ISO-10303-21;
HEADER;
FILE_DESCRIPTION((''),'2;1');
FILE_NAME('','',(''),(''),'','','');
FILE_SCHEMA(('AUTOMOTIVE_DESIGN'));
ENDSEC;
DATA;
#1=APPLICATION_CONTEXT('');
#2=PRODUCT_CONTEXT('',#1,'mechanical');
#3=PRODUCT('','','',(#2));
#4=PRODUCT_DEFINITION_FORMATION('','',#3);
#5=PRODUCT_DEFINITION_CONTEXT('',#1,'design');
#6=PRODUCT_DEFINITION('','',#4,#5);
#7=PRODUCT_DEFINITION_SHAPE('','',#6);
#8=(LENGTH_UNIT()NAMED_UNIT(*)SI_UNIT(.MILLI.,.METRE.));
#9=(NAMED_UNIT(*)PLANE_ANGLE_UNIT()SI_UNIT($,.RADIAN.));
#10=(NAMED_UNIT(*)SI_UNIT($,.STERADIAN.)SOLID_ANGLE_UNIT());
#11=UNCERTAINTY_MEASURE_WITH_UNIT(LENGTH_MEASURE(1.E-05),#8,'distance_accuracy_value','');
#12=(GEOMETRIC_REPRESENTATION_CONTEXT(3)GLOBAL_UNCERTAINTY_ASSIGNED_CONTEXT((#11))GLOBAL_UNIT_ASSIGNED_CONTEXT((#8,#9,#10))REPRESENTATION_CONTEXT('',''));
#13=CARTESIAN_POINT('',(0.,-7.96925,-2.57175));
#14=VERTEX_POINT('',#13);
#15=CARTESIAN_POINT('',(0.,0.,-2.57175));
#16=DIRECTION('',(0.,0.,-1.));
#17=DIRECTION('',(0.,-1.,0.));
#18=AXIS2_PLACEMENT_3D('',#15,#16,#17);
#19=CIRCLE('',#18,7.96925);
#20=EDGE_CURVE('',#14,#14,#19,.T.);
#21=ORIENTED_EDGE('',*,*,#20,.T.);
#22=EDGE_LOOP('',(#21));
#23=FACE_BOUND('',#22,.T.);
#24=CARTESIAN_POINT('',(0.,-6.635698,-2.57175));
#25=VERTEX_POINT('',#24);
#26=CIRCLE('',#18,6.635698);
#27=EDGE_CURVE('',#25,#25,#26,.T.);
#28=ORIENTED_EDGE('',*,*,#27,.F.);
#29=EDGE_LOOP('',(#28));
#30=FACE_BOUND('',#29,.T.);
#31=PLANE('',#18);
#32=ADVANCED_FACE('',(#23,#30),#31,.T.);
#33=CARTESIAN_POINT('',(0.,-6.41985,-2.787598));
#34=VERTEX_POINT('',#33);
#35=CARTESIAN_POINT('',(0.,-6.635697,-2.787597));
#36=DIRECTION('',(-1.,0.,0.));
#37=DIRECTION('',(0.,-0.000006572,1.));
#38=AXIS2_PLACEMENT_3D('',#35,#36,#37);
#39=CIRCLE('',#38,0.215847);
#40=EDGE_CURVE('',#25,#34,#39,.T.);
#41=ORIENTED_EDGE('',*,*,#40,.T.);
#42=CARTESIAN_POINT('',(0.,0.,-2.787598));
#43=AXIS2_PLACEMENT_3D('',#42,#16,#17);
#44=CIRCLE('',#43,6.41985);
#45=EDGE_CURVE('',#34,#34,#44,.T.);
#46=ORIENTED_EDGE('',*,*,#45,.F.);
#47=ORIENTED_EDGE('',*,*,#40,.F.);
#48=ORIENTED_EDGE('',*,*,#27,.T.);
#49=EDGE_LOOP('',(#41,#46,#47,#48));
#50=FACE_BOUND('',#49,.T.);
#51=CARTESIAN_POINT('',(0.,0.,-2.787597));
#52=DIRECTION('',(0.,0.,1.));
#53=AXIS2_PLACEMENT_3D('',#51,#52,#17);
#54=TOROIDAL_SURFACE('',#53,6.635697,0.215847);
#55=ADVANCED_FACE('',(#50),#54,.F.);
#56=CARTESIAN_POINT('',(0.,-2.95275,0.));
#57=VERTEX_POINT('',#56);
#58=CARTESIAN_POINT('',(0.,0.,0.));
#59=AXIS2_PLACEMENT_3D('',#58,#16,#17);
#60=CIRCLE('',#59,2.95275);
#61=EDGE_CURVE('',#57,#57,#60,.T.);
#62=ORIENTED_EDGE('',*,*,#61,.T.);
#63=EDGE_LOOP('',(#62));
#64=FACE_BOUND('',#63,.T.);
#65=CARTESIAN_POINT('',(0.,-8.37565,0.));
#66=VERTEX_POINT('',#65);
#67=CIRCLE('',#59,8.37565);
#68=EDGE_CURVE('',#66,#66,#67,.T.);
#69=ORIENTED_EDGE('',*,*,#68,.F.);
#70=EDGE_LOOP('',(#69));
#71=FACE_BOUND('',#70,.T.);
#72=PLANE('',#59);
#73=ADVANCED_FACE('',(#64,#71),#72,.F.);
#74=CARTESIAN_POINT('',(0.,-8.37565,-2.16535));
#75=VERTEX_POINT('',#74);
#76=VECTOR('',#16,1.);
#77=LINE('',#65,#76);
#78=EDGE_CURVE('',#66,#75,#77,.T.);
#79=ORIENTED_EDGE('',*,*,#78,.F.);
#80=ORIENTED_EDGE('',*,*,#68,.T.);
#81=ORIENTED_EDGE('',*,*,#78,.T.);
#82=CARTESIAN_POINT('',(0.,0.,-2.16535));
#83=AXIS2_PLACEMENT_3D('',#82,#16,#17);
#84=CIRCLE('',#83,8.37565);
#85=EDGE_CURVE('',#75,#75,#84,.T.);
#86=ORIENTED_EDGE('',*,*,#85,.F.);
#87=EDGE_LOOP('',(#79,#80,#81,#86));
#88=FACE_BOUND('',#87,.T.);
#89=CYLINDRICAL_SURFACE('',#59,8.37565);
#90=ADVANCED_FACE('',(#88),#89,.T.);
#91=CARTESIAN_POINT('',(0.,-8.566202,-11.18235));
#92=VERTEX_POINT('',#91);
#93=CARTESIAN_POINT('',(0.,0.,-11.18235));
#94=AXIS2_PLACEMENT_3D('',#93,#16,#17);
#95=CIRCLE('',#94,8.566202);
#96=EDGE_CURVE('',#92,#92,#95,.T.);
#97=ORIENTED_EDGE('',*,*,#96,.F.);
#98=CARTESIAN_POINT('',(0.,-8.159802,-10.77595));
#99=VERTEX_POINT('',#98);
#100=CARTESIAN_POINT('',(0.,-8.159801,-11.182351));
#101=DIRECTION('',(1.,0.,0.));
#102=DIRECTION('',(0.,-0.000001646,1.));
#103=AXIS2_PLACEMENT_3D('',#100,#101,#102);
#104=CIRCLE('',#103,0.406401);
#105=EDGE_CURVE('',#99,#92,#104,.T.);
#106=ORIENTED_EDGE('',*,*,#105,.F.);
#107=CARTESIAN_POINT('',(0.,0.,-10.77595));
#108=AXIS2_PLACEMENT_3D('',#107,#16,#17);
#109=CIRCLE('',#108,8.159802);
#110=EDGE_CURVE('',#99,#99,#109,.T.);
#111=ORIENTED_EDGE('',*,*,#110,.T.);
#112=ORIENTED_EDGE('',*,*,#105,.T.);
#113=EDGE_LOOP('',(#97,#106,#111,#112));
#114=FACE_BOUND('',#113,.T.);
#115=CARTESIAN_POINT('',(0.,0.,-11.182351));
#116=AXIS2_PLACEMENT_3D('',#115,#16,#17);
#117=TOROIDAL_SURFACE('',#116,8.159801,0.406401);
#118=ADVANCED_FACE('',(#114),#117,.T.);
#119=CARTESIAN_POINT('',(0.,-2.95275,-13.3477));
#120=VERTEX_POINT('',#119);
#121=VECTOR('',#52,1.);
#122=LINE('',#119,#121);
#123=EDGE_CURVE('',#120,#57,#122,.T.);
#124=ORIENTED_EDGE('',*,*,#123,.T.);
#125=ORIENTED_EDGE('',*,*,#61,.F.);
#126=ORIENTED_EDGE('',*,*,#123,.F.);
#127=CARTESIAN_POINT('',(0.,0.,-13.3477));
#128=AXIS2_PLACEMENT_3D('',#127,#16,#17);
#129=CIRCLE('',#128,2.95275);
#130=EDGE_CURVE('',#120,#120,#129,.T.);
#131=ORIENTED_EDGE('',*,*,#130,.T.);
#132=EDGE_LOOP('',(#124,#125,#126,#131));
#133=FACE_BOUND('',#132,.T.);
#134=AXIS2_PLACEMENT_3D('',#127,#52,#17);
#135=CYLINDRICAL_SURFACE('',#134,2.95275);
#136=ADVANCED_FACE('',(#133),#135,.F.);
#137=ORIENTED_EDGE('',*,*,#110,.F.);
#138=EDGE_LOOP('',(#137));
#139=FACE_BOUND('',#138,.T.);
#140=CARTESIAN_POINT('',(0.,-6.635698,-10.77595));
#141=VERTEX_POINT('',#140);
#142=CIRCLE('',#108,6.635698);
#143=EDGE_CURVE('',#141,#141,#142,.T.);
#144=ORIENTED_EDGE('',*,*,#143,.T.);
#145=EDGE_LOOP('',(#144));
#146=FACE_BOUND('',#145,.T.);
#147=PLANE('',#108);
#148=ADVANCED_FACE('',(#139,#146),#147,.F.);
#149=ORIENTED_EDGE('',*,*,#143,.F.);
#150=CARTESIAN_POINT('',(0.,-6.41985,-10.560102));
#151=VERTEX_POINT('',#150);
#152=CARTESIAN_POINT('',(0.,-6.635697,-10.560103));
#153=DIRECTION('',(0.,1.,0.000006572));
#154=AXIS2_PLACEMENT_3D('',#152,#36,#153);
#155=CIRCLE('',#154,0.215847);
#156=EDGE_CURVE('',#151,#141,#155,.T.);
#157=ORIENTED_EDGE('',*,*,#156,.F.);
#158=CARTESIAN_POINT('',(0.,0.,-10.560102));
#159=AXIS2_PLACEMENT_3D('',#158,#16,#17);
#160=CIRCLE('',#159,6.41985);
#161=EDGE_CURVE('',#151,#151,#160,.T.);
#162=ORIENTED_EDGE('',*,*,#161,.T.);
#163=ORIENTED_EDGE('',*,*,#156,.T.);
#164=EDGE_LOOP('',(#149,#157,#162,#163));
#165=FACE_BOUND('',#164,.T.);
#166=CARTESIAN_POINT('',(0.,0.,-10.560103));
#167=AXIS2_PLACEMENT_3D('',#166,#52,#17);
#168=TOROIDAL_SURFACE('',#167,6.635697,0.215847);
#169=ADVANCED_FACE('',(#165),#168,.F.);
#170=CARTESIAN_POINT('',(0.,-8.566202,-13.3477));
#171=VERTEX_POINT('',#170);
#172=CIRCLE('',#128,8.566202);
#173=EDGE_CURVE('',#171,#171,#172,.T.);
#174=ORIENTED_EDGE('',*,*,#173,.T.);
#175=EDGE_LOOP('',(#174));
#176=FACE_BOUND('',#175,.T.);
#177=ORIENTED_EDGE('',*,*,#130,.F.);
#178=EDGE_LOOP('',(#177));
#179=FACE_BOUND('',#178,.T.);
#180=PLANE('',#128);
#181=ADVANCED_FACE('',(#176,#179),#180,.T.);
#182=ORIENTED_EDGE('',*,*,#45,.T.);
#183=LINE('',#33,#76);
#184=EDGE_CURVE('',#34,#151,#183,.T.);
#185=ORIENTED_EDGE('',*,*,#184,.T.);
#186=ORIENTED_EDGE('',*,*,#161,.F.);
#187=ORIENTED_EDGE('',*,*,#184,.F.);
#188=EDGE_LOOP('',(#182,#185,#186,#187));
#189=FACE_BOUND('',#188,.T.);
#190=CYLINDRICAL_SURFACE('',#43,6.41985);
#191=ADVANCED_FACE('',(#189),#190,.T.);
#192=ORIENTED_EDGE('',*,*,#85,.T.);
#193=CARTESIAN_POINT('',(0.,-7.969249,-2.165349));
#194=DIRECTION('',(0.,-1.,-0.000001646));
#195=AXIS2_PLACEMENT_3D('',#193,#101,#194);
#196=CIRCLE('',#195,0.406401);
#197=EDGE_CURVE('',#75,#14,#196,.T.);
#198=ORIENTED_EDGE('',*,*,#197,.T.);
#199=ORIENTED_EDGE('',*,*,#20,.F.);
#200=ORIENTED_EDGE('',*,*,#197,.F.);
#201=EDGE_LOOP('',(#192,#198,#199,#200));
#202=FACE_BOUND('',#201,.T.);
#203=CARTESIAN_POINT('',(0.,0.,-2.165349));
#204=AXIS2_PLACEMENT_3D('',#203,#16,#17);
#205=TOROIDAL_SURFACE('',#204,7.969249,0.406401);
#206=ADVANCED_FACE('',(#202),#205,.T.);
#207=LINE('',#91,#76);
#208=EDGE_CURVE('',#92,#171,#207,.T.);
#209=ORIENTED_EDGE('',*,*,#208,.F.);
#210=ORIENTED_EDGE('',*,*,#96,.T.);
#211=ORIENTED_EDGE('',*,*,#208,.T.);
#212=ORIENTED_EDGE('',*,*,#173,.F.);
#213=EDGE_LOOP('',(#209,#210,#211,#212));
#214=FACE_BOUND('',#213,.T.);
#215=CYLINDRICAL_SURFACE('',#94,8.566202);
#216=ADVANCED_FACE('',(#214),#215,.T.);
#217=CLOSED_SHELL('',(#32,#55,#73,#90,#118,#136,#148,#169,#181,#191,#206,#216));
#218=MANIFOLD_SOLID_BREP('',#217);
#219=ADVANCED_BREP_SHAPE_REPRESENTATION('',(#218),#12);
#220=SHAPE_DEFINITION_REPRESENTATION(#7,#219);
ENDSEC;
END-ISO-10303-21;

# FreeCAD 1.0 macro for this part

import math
import FreeCAD as App
import Part
import Sketcher

V = App.Vector
Q = App.Units.Quantity

doc = App.newDocument("Part")
params = doc.addObject("Spreadsheet::Sheet", "Params")
for row, (alias, value) in enumerate([
    ("sketch1_radius", "0.016 in"),
    ("revolution_angle", "360 deg"),
], start=1):
    params.set(f"A{row}", alias)
    params.set(f"B{row}", "=" + value)
    params.setAlias(f"B{row}", alias)

body = doc.addObject("PartDesign::Body", "Body")

sketch1 = body.newObject("Sketcher::SketchObject", "Sketch")
sketch1.AttachmentSupport = (doc.getObject("YZ_Plane"), [""])
sketch1.MapMode = "FlatFace"
sketch1.addGeometry(Part.LineSegment(V(-2.95, 0, 0), V(-8.38, 0, 0)), False)
sketch1.addGeometry(Part.LineSegment(V(-8.38, 0, 0), V(-8.38, -2.17, 0)), False)
sketch1.addGeometry(Part.ArcOfCircle(Part.Circle(V(-7.97, -2.17, 0), V(0, 0, 1), 0.41), math.radians(-180), math.radians(-90)), False)
sketch1.addGeometry(Part.LineSegment(V(-7.97, -2.57, 0), V(-6.64, -2.57, 0)), False)
sketch1.addGeometry(Part.ArcOfCircle(Part.Circle(V(-6.64, -2.79, 0), V(0, 0, 1), 0.22), math.radians(0), math.radians(90)), False)
sketch1.addGeometry(Part.LineSegment(V(-6.42, -2.79, 0), V(-6.42, -10.56, 0)), False)
sketch1.addGeometry(Part.ArcOfCircle(Part.Circle(V(-6.64, -10.56, 0), V(0, 0, 1), 0.22), math.radians(-90), math.radians(0)), False)
sketch1.addGeometry(Part.LineSegment(V(-6.64, -10.78, 0), V(-8.16, -10.78, 0)), False)
sketch1.addGeometry(Part.ArcOfCircle(Part.Circle(V(-8.16, -11.18, 0), V(0, 0, 1), 0.41), math.radians(90), math.radians(180)), False)
sketch1.addGeometry(Part.LineSegment(V(-8.57, -11.18, 0), V(-8.57, -13.35, 0)), False)
sketch1.addGeometry(Part.LineSegment(V(-8.57, -13.35, 0), V(-2.95, -13.35, 0)), False)
sketch1.addGeometry(Part.LineSegment(V(-2.95, -13.35, 0), V(-2.95, 0, 0)), False)
sketch1.addConstraint(Sketcher.Constraint("Coincident", 0, 2, 1, 1))
sketch1.addConstraint(Sketcher.Constraint("Tangent", 1, 2, 2, 1))
sketch1.addConstraint(Sketcher.Constraint("Tangent", 2, 2, 3, 1))
sketch1.addConstraint(Sketcher.Constraint("Coincident", 3, 2, 4, 2))
sketch1.addConstraint(Sketcher.Constraint("Coincident", 4, 1, 5, 1))
sketch1.addConstraint(Sketcher.Constraint("Coincident", 5, 2, 6, 2))
sketch1.addConstraint(Sketcher.Constraint("Coincident", 6, 1, 7, 1))
sketch1.addConstraint(Sketcher.Constraint("Tangent", 7, 2, 8, 1))
sketch1.addConstraint(Sketcher.Constraint("Tangent", 8, 2, 9, 1))
sketch1.addConstraint(Sketcher.Constraint("Coincident", 9, 2, 10, 1))
sketch1.addConstraint(Sketcher.Constraint("Coincident", 10, 2, 11, 1))
sketch1.addConstraint(Sketcher.Constraint("Coincident", 11, 2, 0, 1))
sketch1.addConstraint(Sketcher.Constraint("Horizontal", 0))
sketch1.addConstraint(Sketcher.Constraint("Vertical", 1))
sketch1.addConstraint(Sketcher.Constraint("Horizontal", 3))
sketch1.addConstraint(Sketcher.Constraint("Vertical", 5))
sketch1.addConstraint(Sketcher.Constraint("Horizontal", 7))
sketch1.addConstraint(Sketcher.Constraint("Vertical", 9))
sketch1.addConstraint(Sketcher.Constraint("Horizontal", 10))
sketch1.addConstraint(Sketcher.Constraint("Vertical", 11))
sketch1.addConstraint(Sketcher.Constraint("Equal", 4, 6))
sketch1.addConstraint(Sketcher.Constraint("Equal", 2, 8))
sketch1.addConstraint(Sketcher.Constraint("PointOnObject", 0, 2, -1))
sketch1.addConstraint(Sketcher.Constraint("Horizontal", 6, 3, 5, 2))
sketch1.addConstraint(Sketcher.Constraint("Vertical", 6, 3, 3, 2))
sketch1.addConstraint(Sketcher.Constraint("Vertical", 3, 2, 6, 1))
sketch1.addConstraint(Sketcher.Constraint("Equal", 1, 9))
sketch1.addConstraint(Sketcher.Constraint("Radius", 2, Q("0.016 in")))
sketch1.addConstraint(Sketcher.Constraint("DistanceX", 0, 2, 0, 1, Q("0.2135 in")))
sketch1.addConstraint(Sketcher.Constraint("DistanceY", 11, 1, 11, 2, Q("0.5255 in")))
sketch1.addConstraint(Sketcher.Constraint("DistanceY", 8, 3, 2, 3, Q("0.3550001 in")))
sketch1.addConstraint(Sketcher.Constraint("DistanceX", 2, 2, 4, 1, Q("0.061 in")))
sketch1.addConstraint(Sketcher.Constraint("Radius", 4, Q("0.215847 mm")))
sketch1.addConstraint(Sketcher.Constraint("DistanceX", 8, 3, -1, 1, Q("8.159801 mm")))
sketch1.addConstraint(Sketcher.Constraint("DistanceY", 4, 1, -1, 1, Q("2.787598 mm")))
sketch1.addConstraint(Sketcher.Constraint("DistanceX", 7, 2, 7, 1, Q("1.524104 mm")))
sketch1.setExpression("Constraints[27]", "Params.sketch1_radius")
revolution = body.newObject("PartDesign::Revolution", "Revolution")
revolution.Profile = sketch1
revolution.ReferenceAxis = (sketch1, ["V_Axis"])
revolution.setExpression("Angle", "Params.revolution_angle")

doc.recompute()
